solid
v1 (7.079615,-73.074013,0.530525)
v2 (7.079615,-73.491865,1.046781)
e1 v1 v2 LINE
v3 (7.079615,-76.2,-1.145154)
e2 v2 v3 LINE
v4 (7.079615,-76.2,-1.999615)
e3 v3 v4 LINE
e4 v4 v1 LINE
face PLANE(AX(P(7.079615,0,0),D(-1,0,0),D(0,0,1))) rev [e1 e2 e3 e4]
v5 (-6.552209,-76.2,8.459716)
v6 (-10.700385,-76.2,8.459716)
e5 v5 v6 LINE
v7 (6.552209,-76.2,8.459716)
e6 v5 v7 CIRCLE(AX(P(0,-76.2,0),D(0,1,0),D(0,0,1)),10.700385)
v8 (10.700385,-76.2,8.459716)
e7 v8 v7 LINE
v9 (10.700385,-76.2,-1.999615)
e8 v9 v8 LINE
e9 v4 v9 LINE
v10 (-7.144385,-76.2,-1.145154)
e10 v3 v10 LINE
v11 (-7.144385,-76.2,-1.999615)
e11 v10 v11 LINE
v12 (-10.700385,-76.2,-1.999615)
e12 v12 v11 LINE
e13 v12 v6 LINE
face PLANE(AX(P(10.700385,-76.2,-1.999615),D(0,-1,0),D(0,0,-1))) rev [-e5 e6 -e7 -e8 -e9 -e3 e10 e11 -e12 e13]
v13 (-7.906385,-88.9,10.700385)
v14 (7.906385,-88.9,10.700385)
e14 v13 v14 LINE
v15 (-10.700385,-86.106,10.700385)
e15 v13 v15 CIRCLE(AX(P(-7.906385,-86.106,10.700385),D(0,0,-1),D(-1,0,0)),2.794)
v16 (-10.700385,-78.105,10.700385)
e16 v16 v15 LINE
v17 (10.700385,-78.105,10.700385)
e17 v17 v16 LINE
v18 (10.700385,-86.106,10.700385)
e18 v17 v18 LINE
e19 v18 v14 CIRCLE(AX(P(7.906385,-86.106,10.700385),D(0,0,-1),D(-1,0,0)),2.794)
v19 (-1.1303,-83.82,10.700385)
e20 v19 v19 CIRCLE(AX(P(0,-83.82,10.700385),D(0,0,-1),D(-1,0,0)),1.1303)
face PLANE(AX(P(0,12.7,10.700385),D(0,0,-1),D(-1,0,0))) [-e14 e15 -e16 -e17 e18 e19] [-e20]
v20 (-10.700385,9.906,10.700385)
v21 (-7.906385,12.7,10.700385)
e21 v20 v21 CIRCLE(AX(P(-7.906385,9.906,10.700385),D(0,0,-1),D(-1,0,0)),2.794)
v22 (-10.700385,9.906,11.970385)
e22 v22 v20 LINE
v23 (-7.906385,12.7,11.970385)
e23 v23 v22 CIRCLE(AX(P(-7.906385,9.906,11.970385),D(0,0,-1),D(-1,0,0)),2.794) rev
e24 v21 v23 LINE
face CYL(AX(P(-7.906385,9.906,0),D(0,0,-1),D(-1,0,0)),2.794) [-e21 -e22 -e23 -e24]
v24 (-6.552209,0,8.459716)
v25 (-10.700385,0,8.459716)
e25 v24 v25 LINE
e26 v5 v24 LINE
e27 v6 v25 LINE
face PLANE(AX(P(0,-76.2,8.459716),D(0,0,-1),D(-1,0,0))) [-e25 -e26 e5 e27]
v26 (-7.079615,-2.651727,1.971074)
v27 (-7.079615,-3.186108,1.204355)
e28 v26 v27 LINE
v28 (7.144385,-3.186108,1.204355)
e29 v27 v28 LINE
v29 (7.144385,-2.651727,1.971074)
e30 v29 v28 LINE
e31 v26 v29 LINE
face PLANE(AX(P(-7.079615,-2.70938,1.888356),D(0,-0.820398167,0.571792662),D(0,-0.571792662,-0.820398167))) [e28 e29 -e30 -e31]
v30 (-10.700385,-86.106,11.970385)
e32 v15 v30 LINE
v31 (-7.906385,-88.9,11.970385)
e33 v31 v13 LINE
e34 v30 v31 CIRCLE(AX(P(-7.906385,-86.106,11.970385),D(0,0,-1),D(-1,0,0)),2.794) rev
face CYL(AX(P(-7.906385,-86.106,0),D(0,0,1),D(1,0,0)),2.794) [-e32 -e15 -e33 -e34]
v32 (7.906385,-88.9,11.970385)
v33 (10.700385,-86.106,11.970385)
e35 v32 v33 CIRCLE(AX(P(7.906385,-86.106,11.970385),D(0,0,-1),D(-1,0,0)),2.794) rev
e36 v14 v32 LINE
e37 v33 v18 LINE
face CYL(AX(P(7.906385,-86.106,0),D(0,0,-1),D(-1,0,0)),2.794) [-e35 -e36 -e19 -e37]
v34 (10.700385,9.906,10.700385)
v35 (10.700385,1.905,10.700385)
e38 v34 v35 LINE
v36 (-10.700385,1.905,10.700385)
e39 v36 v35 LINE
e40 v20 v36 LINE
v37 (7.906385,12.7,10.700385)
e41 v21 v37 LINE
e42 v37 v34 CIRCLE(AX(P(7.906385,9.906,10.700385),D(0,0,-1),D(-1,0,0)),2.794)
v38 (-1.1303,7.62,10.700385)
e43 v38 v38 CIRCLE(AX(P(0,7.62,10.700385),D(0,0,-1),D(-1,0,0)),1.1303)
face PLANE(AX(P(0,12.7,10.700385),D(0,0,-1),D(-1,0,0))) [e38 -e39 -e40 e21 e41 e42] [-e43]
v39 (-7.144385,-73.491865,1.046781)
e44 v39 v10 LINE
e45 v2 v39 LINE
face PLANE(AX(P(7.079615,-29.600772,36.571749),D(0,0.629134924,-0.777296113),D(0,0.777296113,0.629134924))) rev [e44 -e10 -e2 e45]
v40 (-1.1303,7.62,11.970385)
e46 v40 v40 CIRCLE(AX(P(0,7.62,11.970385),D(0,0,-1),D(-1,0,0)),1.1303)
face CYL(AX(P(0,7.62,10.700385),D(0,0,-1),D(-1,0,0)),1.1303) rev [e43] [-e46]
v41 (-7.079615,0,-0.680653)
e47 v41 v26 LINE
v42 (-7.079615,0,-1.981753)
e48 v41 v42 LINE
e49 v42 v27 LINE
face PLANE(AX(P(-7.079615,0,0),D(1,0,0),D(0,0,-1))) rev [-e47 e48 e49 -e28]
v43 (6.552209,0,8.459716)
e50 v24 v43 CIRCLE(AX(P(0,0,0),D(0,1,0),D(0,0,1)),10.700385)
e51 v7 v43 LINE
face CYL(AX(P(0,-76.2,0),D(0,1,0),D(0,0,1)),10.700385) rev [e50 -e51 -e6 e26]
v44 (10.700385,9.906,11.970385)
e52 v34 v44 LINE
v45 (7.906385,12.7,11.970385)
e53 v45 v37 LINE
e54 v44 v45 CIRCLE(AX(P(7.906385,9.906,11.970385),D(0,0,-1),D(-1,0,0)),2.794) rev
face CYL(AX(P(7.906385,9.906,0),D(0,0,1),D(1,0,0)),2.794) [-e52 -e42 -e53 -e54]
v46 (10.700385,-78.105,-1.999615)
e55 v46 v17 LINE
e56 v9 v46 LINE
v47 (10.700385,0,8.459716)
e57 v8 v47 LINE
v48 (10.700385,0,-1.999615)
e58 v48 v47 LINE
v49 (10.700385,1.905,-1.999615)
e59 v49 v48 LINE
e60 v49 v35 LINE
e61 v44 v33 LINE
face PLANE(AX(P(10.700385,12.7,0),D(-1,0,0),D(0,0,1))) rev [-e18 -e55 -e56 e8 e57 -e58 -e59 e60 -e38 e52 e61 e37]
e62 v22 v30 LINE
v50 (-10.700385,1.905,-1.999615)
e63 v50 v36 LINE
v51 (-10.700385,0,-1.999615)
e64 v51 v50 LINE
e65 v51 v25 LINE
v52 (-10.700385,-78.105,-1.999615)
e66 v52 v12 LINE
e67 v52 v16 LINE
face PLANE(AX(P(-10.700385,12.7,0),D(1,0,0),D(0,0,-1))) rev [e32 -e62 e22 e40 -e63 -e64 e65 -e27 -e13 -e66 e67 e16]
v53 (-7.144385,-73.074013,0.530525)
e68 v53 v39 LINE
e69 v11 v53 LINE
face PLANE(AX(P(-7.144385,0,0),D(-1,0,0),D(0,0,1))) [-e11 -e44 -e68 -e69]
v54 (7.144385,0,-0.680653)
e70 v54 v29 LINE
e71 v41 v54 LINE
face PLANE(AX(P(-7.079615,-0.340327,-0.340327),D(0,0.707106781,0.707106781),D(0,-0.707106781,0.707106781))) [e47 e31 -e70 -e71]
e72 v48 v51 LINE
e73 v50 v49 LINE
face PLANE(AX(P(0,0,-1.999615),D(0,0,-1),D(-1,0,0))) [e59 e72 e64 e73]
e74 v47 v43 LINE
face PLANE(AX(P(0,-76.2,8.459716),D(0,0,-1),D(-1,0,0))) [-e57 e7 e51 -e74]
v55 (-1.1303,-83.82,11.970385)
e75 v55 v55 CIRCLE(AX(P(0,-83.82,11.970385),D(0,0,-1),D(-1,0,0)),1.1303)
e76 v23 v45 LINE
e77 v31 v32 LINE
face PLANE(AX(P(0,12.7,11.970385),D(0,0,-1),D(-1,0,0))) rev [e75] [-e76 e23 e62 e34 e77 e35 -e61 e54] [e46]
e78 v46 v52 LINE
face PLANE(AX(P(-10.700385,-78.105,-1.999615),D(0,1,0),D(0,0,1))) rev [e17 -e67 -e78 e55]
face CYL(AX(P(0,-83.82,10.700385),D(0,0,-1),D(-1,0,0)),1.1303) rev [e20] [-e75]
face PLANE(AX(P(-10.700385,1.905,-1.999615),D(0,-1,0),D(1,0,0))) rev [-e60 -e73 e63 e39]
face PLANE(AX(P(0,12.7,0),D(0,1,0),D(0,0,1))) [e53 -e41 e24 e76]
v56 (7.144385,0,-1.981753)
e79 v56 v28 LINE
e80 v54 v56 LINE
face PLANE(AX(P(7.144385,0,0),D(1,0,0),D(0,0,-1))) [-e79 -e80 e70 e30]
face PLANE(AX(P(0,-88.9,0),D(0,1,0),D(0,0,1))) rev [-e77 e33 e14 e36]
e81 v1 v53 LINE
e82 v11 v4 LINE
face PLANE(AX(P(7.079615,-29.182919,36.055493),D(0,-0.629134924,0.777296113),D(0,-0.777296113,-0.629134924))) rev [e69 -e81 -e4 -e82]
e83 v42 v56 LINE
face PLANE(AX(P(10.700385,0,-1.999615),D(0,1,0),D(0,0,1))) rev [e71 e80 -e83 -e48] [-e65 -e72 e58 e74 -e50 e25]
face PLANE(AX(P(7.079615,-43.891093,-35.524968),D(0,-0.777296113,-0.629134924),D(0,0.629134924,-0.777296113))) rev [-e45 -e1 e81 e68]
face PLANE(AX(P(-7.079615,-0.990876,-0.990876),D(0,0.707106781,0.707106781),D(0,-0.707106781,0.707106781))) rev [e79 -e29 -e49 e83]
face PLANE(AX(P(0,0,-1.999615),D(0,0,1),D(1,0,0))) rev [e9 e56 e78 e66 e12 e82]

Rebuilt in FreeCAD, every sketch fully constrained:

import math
import FreeCAD as App
import Part
import Sketcher
Q = App.Units.Quantity


def edges_at(feature, points):
    """Names of the edges that pass closest to the given points."""
    edges = feature.Shape.Edges
    near = lambda p: min(range(len(edges)), key=lambda i: edges[i].distToShape(Part.Vertex(*p))[0])
    return sorted({f"Edge{near(p) + 1}" for p in points})


def add_polygon(sketch, points):
    """Adds a closed chain of lines whose ends are joined by coincident constraints."""
    first, n = sketch.GeometryCount, len(points)
    for a, b in zip(points, points[1:] + points[:1]):
        sketch.addGeometry(Part.LineSegment(App.Vector(*a, 0), App.Vector(*b, 0)), False)
    for i in range(n):
        sketch.addConstraint(Sketcher.Constraint("Coincident", first + i, 2, first + (i + 1) % n, 1))

doc = App.newDocument("Part")
body = doc.addObject("PartDesign::Body", "Body")

# Sketch on XZ plane
sketch1 = body.newObject("Sketcher::SketchObject", "Sketch")
sketch1.AttachmentSupport = (doc.getObject("XZ_Plane"), [""])
sketch1.MapMode = "FlatFace"
add_polygon(sketch1, [(-10.700385, 10.700385), (-10.700385, 11.970385), (10.700385, 11.970385), (10.700385, 10.700385)])  # lines 0-3
sketch1.addConstraint(Sketcher.Constraint("Vertical", 0))
sketch1.addConstraint(Sketcher.Constraint("Horizontal", 1))
sketch1.addConstraint(Sketcher.Constraint("Vertical", 2))
sketch1.addConstraint(Sketcher.Constraint("Horizontal", 3))
sketch1.addConstraint(Sketcher.Constraint("DistanceY", 0, 1, 0, 2, Q("0.05 in")))
sketch1.addConstraint(Sketcher.Constraint("DistanceX", 1, 1, 1, 2, Q("21.40077 mm")))
sketch1.addConstraint(Sketcher.Constraint("DistanceX", 0, 2, -1, 1, Q("10.700385 mm")))
sketch1.addConstraint(Sketcher.Constraint("DistanceY", -1, 1, 0, 2, Q("11.970385 mm")))
pad1 = body.newObject("PartDesign::Pad", "Pad")
pad1.Profile = sketch1
pad1.Type = "TwoLengths"
pad1.Length = Q("0.5 in")
pad1.Length2 = Q("3.5 in")
pad1.Reversed = True

# Sketch on XZ plane
sketch2 = body.newObject("Sketcher::SketchObject", "Sketch001")
sketch2.AttachmentSupport = (doc.getObject("XZ_Plane"), [""])
sketch2.MapMode = "FlatFace"
sketch2.addGeometry(Part.ArcOfCircle(Part.Circle(App.Vector(0, 0, 0), App.Vector(0, 0, 1), 10.700385), math.radians(90), math.radians(127.758455)), False)
sketch2.addGeometry(Part.LineSegment(App.Vector(-6.552209, 8.459716, 0), App.Vector(-10.700385, 8.459716, 0)), False)
sketch2.addGeometry(Part.LineSegment(App.Vector(-10.700385, 8.459716, 0), App.Vector(-10.700385, 10.700385, 0)), False)
sketch2.addGeometry(Part.LineSegment(App.Vector(-10.700385, 10.700385, 0), App.Vector(0, 10.700385, 0)), False)
sketch2.addGeometry(Part.ArcOfCircle(Part.Circle(App.Vector(0, 0, 0), App.Vector(0, 0, 1), 10.700385), math.radians(52.241545), math.radians(90)), False)
sketch2.addGeometry(Part.LineSegment(App.Vector(0, 10.700385, 0), App.Vector(10.700385, 10.700385, 0)), False)
sketch2.addGeometry(Part.LineSegment(App.Vector(10.700385, 10.700385, 0), App.Vector(10.700385, 8.459716, 0)), False)
sketch2.addGeometry(Part.LineSegment(App.Vector(10.700385, 8.459716, 0), App.Vector(6.552209, 8.459716, 0)), False)
sketch2.addConstraint(Sketcher.Constraint("Coincident", 0, 2, 1, 1))
sketch2.addConstraint(Sketcher.Constraint("Coincident", 1, 2, 2, 1))
sketch2.addConstraint(Sketcher.Constraint("Coincident", 2, 2, 3, 1))
sketch2.addConstraint(Sketcher.Constraint("Tangent", 3, 2, 0, 1))
sketch2.addConstraint(Sketcher.Constraint("Tangent", 4, 2, 5, 1))
sketch2.addConstraint(Sketcher.Constraint("Coincident", 5, 2, 6, 1))
sketch2.addConstraint(Sketcher.Constraint("Coincident", 6, 2, 7, 1))
sketch2.addConstraint(Sketcher.Constraint("Coincident", 7, 2, 4, 1))
sketch2.addConstraint(Sketcher.Constraint("Horizontal", 1))
sketch2.addConstraint(Sketcher.Constraint("Vertical", 2))
sketch2.addConstraint(Sketcher.Constraint("Horizontal", 3))
sketch2.addConstraint(Sketcher.Constraint("Horizontal", 5))
sketch2.addConstraint(Sketcher.Constraint("Vertical", 6))
sketch2.addConstraint(Sketcher.Constraint("Horizontal", 7))
sketch2.addConstraint(Sketcher.Constraint("Coincident", 0, 3, -1, 1))
sketch2.addConstraint(Sketcher.Constraint("Coincident", 4, 3, -1, 1))
sketch2.addConstraint(Sketcher.Constraint("Equal", 0, 4))
sketch2.addConstraint(Sketcher.Constraint("Symmetric", 1, 2, 6, 2, -2))
sketch2.addConstraint(Sketcher.Constraint("Radius", 0, Q("10.700385 mm")))
sketch2.addConstraint(Sketcher.Constraint("DistanceY", 2, 1, 2, 2, Q("2.240669 mm")))
sketch2.addConstraint(Sketcher.Constraint("DistanceX", 1, 2, 1, 1, Q("4.148176 mm")))
pad2 = body.newObject("PartDesign::Pad", "Pad001")
pad2.Profile = sketch2
pad2.Length = Q("3 in")

# Sketch on XY plane
sketch3 = body.newObject("Sketcher::SketchObject", "Sketch002")
sketch3.AttachmentSupport = (doc.getObject("XY_Plane"), [""])
sketch3.MapMode = "FlatFace"
sketch3.AttachmentOffset = App.Placement(App.Vector(0, 0, 10.700385), App.Rotation())
add_polygon(sketch3, [(10.700385, 1.905), (10.700385, 0), (-10.700385, 0), (-10.700385, 1.905)])  # lines 0-3
sketch3.addConstraint(Sketcher.Constraint("Vertical", 0))
sketch3.addConstraint(Sketcher.Constraint("Horizontal", 1))
sketch3.addConstraint(Sketcher.Constraint("Vertical", 2))
sketch3.addConstraint(Sketcher.Constraint("Horizontal", 3))
sketch3.addConstraint(Sketcher.Constraint("Symmetric", 0, 2, 1, 2, -1, 1))
sketch3.addConstraint(Sketcher.Constraint("DistanceY", 0, 2, 0, 1, Q("0.075 in")))
sketch3.addConstraint(Sketcher.Constraint("DistanceX", 1, 2, 1, 1, Q("21.40077 mm")))
pad3 = body.newObject("PartDesign::Pad", "Pad002")
pad3.Profile = sketch3
pad3.Length = Q("0.5 in")
pad3.Reversed = True

# Sketch on XY plane
sketch4 = body.newObject("Sketcher::SketchObject", "Sketch003")
sketch4.AttachmentSupport = (doc.getObject("XY_Plane"), [""])
sketch4.MapMode = "FlatFace"
sketch4.AttachmentOffset = App.Placement(App.Vector(0, 0, 10.700385), App.Rotation())
add_polygon(sketch4, [(10.700385, -76.2), (10.700385, -78.105), (-10.700385, -78.105), (-10.700385, -76.2)])  # lines 0-3
sketch4.addConstraint(Sketcher.Constraint("Vertical", 0))
sketch4.addConstraint(Sketcher.Constraint("Horizontal", 1))
sketch4.addConstraint(Sketcher.Constraint("Vertical", 2))
sketch4.addConstraint(Sketcher.Constraint("Horizontal", 3))
sketch4.addConstraint(Sketcher.Constraint("DistanceY", 2, 2, -1, 1, Q("3 in")))
sketch4.addConstraint(Sketcher.Constraint("DistanceY", 0, 2, 0, 1, Q("0.075 in")))
sketch4.addConstraint(Sketcher.Constraint("DistanceX", 1, 2, 1, 1, Q("21.40077 mm")))
sketch4.addConstraint(Sketcher.Constraint("DistanceX", -1, 1, 0, 2, Q("10.700385 mm")))
pad4 = body.newObject("PartDesign::Pad", "Pad003")
pad4.Profile = sketch4
pad4.Length = Q("0.5 in")
pad4.Reversed = True

# Sketch on YZ plane
sketch5 = body.newObject("Sketcher::SketchObject", "Sketch004")
sketch5.AttachmentSupport = (doc.getObject("YZ_Plane"), [""])
sketch5.MapMode = "FlatFace"
sketch5.AttachmentOffset = App.Placement(App.Vector(0, 0, 10.700385), App.Rotation())
add_polygon(sketch5, [(-3.186108, 1.204355), (0, -1.981753), (0, -0.680653), (-2.651727, 1.971074)])  # lines 0-3
sketch5.addConstraint(Sketcher.Constraint("Vertical", 1))
sketch5.addConstraint(Sketcher.Constraint("PointOnObject", 0, 2, -2))
sketch5.addConstraint(Sketcher.Constraint("Parallel", 0, 2))
sketch5.addConstraint(Sketcher.Constraint("Angle", 0, Q("-45 deg")))
sketch5.addConstraint(Sketcher.Constraint("DistanceY", 1, 1, 1, 2, Q("1.301099 mm")))
sketch5.addConstraint(Sketcher.Constraint("Distance", 2, Q("3.750109 mm")))
sketch5.addConstraint(Sketcher.Constraint("Distance", 3, Q("0.93457 mm")))
sketch5.addConstraint(Sketcher.Constraint("DistanceY", 0, 2, -1, 1, Q("1.981753 mm")))
pad5 = body.newObject("PartDesign::Pad", "Pad004")
pad5.Profile = sketch5
pad5.Length = Q("0.7 in")
pad5.Reversed = True

# Sketch on YZ plane
sketch6 = body.newObject("Sketcher::SketchObject", "Sketch005")
sketch6.AttachmentSupport = (doc.getObject("YZ_Plane"), [""])
sketch6.MapMode = "FlatFace"
sketch6.AttachmentOffset = App.Placement(App.Vector(0, 0, 10.700385), App.Rotation())
add_polygon(sketch6, [(-3.186108, 1.204355), (0, -1.981753), (0, -0.680653), (-2.651727, 1.971074)])  # lines 0-3
sketch6.addConstraint(Sketcher.Constraint("Vertical", 1))
sketch6.addConstraint(Sketcher.Constraint("PointOnObject", 0, 2, -2))
sketch6.addConstraint(Sketcher.Constraint("Parallel", 0, 2))
sketch6.addConstraint(Sketcher.Constraint("Angle", 0, Q("-45 deg")))
sketch6.addConstraint(Sketcher.Constraint("DistanceY", 1, 1, 1, 2, Q("1.301099 mm")))
sketch6.addConstraint(Sketcher.Constraint("Distance", 2, Q("3.750109 mm")))
sketch6.addConstraint(Sketcher.Constraint("Distance", 3, Q("0.93457 mm")))
sketch6.addConstraint(Sketcher.Constraint("DistanceY", 0, 2, -1, 1, Q("1.981753 mm")))
pocket1 = body.newObject("PartDesign::Pocket", "Pocket")
pocket1.Profile = sketch6
pocket1.Length = Q("0.14 in")

# Sketch on YZ plane
sketch7 = body.newObject("Sketcher::SketchObject", "Sketch006")
sketch7.AttachmentSupport = (doc.getObject("YZ_Plane"), [""])
sketch7.MapMode = "FlatFace"
sketch7.AttachmentOffset = App.Placement(App.Vector(0, 0, -10.700385), App.Rotation())
add_polygon(sketch7, [(-73.074013, 0.530525), (-76.2, -1.999615), (-76.2, -1.145154), (-73.491865, 1.046781)])  # lines 0-3
sketch7.addConstraint(Sketcher.Constraint("Vertical", 1))
sketch7.addConstraint(Sketcher.Constraint("Parallel", 0, 2))
sketch7.addConstraint(Sketcher.Constraint("Perpendicular", 2, 3))
sketch7.addConstraint(Sketcher.Constraint("DistanceX", 0, 2, -1, 1, Q("3 in")))
sketch7.addConstraint(Sketcher.Constraint("DistanceY", 1, 1, 1, 2, Q("0.854461 mm")))
sketch7.addConstraint(Sketcher.Constraint("Distance", 3, Q("0.664169 mm")))
sketch7.addConstraint(Sketcher.Constraint("DistanceY", -1, 1, 2, 2, Q("1.046781 mm")))
sketch7.addConstraint(Sketcher.Constraint("DistanceY", 1, 2, 3, 2, Q("1.675679 mm")))
pad6 = body.newObject("PartDesign::Pad", "Pad005")
pad6.Profile = sketch7
pad6.Length = Q("0.7 in")

# Sketch on YZ plane
sketch8 = body.newObject("Sketcher::SketchObject", "Sketch007")
sketch8.AttachmentSupport = (doc.getObject("YZ_Plane"), [""])
sketch8.MapMode = "FlatFace"
sketch8.AttachmentOffset = App.Placement(App.Vector(0, 0, -10.700385), App.Rotation())
add_polygon(sketch8, [(-73.074013, 0.530525), (-76.2, -1.999615), (-76.2, -1.145154), (-73.491865, 1.046781)])  # lines 0-3
sketch8.addConstraint(Sketcher.Constraint("Vertical", 1))
sketch8.addConstraint(Sketcher.Constraint("Parallel", 0, 2))
sketch8.addConstraint(Sketcher.Constraint("Perpendicular", 2, 3))
sketch8.addConstraint(Sketcher.Constraint("DistanceX", 0, 2, -1, 1, Q("3 in")))
sketch8.addConstraint(Sketcher.Constraint("DistanceY", 1, 1, 1, 2, Q("0.854461 mm")))
sketch8.addConstraint(Sketcher.Constraint("Distance", 3, Q("0.664169 mm")))
sketch8.addConstraint(Sketcher.Constraint("DistanceY", -1, 1, 2, 2, Q("1.046781 mm")))
sketch8.addConstraint(Sketcher.Constraint("DistanceY", 1, 2, 3, 2, Q("1.675679 mm")))
pocket2 = body.newObject("PartDesign::Pocket", "Pocket001")
pocket2.Profile = sketch8
pocket2.Length = Q("0.14 in")
pocket2.Reversed = True

# Sketch on XY plane
sketch9 = body.newObject("Sketcher::SketchObject", "Sketch008")
sketch9.AttachmentSupport = (doc.getObject("XY_Plane"), [""])
sketch9.MapMode = "FlatFace"
sketch9.AttachmentOffset = App.Placement(App.Vector(0, 0, 10.700385), App.Rotation())
sketch9.addGeometry(Part.Circle(App.Vector(0, -83.82, 0), App.Vector(0, 0, 1), 1.1303), False)
sketch9.addGeometry(Part.Circle(App.Vector(0, 7.62, 0), App.Vector(0, 0, 1), 1.1303), False)
sketch9.addConstraint(Sketcher.Constraint("Equal", 0, 1))
sketch9.addConstraint(Sketcher.Constraint("PointOnObject", 0, 3, -2))
sketch9.addConstraint(Sketcher.Constraint("PointOnObject", 1, 3, -2))
sketch9.addConstraint(Sketcher.Constraint("Diameter", 0, Q("0.089 in")))
sketch9.addConstraint(Sketcher.Constraint("DistanceY", 0, 3, -1, 1, Q("3.3 in")))
sketch9.addConstraint(Sketcher.Constraint("DistanceY", -1, 1, 1, 3, Q("0.3 in")))
doc.recompute()
hole = body.newObject("PartDesign::Hole", "Hole")
hole.Profile = sketch9
hole.ThreadType = "None"
hole.Diameter = Q("0.089 in")
hole.DepthType = "Dimension"
hole.Depth = Q("0.3 in")
hole.DrillPoint = "Angled"
hole.DrillPointAngle = 118
hole.Reversed = True
doc.recompute()

fillet = body.newObject("PartDesign::Fillet", "Fillet")
fillet.Base = (hole, edges_at(hole, [
    (10.7, 12.7, 11.335),
    (-10.7, -88.9, 11.335),
    (10.7, -88.9, 11.335),
    (-10.7, 12.7, 11.335),
]))
fillet.Radius = Q("0.11 in")

doc.recompute()
